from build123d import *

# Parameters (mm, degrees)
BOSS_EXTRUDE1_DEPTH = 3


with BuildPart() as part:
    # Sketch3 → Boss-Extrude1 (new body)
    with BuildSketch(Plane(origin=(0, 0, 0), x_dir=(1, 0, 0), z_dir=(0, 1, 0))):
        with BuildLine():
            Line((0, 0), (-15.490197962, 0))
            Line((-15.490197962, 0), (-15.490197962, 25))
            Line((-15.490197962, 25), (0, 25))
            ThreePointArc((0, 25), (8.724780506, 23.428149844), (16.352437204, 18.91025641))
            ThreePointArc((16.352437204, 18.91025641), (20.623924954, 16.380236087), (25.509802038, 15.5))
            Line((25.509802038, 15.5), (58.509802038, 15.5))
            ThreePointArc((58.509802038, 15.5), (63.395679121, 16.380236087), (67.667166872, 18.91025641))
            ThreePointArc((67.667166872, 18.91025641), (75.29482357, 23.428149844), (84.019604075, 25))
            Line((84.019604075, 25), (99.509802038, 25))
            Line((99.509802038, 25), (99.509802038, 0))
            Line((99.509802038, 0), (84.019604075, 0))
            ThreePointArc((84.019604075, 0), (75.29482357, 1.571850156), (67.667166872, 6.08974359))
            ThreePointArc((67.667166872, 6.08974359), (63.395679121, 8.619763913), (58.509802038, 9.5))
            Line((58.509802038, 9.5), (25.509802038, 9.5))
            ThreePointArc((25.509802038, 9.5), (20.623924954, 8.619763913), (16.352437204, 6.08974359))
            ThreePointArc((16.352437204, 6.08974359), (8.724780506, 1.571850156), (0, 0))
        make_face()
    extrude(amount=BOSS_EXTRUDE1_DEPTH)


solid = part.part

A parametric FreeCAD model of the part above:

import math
import FreeCAD as App
import Part
import Sketcher

V = App.Vector
Q = App.Units.Quantity

doc = App.newDocument("Part")
body = doc.addObject("PartDesign::Body", "Body")

# Sketch on XZ plane
sketch1 = doc.addObject("Sketcher::SketchObject", "Sketch")
body.addObject(sketch1)
sketch1.AttachmentSupport = (doc.XZ_Plane, [""])
sketch1.MapMode = "FlatFace"
sketch1.addGeometry([
    Part.LineSegment(V(-15.490198, 0, 0), V(0, 0, 0)),  # 0
    Part.ArcOfCircle(Part.Circle(V(0, -25, 0), V(0, 0, 1), 25), math.radians(49.148748), math.radians(90)),  # 1
    Part.ArcOfCircle(Part.Circle(V(25.509802, 4.5, 0), V(0, 0, 1), 14), math.radians(-130.851252), math.radians(-90)),  # 2
    Part.LineSegment(V(25.509802, -9.5, 0), V(58.509802, -9.5, 0)),  # 3
    Part.ArcOfCircle(Part.Circle(V(58.509802, 4.5, 0), V(0, 0, 1), 14), math.radians(-90), math.radians(-49.148748)),  # 4
    Part.ArcOfCircle(Part.Circle(V(84.019604, -25, 0), V(0, 0, 1), 25), math.radians(90), math.radians(130.851252)),  # 5
    Part.LineSegment(V(84.019604, 0, 0), V(99.509802, 0, 0)),  # 6
    Part.LineSegment(V(99.509802, 0, 0), V(99.509802, -25, 0)),  # 7
    Part.LineSegment(V(99.509802, -25, 0), V(84.019604, -25, 0)),  # 8
    Part.ArcOfCircle(Part.Circle(V(84.019604, 0, 0), V(0, 0, 1), 25), math.radians(-130.851252), math.radians(-90)),  # 9
    Part.ArcOfCircle(Part.Circle(V(58.509802, -29.5, 0), V(0, 0, 1), 14), math.radians(49.148748), math.radians(90)),  # 10
    Part.LineSegment(V(58.509802, -15.5, 0), V(25.509802, -15.5, 0)),  # 11
    Part.ArcOfCircle(Part.Circle(V(25.509802, -29.5, 0), V(0, 0, 1), 14), math.radians(90), math.radians(130.851252)),  # 12
    Part.ArcOfCircle(Part.Circle(V(0, 0, 0), V(0, 0, 1), 25), math.radians(-90), math.radians(-49.148748)),  # 13
    Part.LineSegment(V(0, -25, 0), V(-15.490198, -25, 0)),  # 14
    Part.LineSegment(V(-15.490198, -25, 0), V(-15.490198, 0, 0)),  # 15
], False)
sketch1.addConstraint([
    Sketcher.Constraint("Tangent", 0, 2, 1, 2),
    Sketcher.Constraint("Tangent", 1, 1, 2, 1),
    Sketcher.Constraint("Tangent", 2, 2, 3, 1),
    Sketcher.Constraint("Tangent", 3, 2, 4, 1),
    Sketcher.Constraint("Tangent", 4, 2, 5, 2),
    Sketcher.Constraint("Tangent", 5, 1, 6, 1),
    Sketcher.Constraint("Coincident", 6, 2, 7, 1),
    Sketcher.Constraint("Coincident", 7, 2, 8, 1),
    Sketcher.Constraint("Tangent", 8, 2, 9, 2),
    Sketcher.Constraint("Tangent", 9, 1, 10, 1),
    Sketcher.Constraint("Tangent", 10, 2, 11, 1),
    Sketcher.Constraint("Tangent", 11, 2, 12, 1),
    Sketcher.Constraint("Tangent", 12, 2, 13, 2),
    Sketcher.Constraint("Tangent", 13, 1, 14, 1),
    Sketcher.Constraint("Coincident", 14, 2, 15, 1),
    Sketcher.Constraint("Coincident", 15, 2, 0, 1),
    Sketcher.Constraint("Horizontal", 0),
    Sketcher.Constraint("Horizontal", 3),
    Sketcher.Constraint("Horizontal", 6),
    Sketcher.Constraint("Vertical", 7),
    Sketcher.Constraint("Horizontal", 8),
    Sketcher.Constraint("Horizontal", 11),
    Sketcher.Constraint("Horizontal", 14),
    Sketcher.Constraint("Vertical", 15),
    Sketcher.Constraint("Coincident", 13, 3, -1, 1),
    Sketcher.Constraint("Coincident", 0, 2, -1, 1),
    Sketcher.Constraint("Coincident", 5, 1, 9, 3),
    Sketcher.Constraint("Equal", 2, 4),
    Sketcher.Constraint("Equal", 1, 5),
    Sketcher.Constraint("Equal", 5, 9),
    Sketcher.Constraint("Equal", 4, 10),
    Sketcher.Constraint("Equal", 10, 12),
    Sketcher.Constraint("Equal", 9, 13),
    Sketcher.Constraint("PointOnObject", 9, 3, -1),
    Sketcher.Constraint("Vertical", 4, 3, 10, 3),
    Sketcher.Constraint("Equal", 0, 6),
    Sketcher.Constraint("Radius", 1, Q("25 mm")),
    Sketcher.Constraint("Radius", 2, Q("14 mm")),
    Sketcher.Constraint("DistanceX", 3, 1, 3, 2, Q("33 mm")),
    Sketcher.Constraint("DistanceY", 10, 3, 4, 3, Q("34 mm")),
    Sketcher.Constraint("DistanceX", 4, 3, 6, 2, Q("41 mm")),
])
pad1 = doc.addObject("PartDesign::Pad", "Pad")
body.addObject(pad1)
pad1.Profile = sketch1
pad1.Length = 3
pad1.Reversed = True

doc.recompute()
